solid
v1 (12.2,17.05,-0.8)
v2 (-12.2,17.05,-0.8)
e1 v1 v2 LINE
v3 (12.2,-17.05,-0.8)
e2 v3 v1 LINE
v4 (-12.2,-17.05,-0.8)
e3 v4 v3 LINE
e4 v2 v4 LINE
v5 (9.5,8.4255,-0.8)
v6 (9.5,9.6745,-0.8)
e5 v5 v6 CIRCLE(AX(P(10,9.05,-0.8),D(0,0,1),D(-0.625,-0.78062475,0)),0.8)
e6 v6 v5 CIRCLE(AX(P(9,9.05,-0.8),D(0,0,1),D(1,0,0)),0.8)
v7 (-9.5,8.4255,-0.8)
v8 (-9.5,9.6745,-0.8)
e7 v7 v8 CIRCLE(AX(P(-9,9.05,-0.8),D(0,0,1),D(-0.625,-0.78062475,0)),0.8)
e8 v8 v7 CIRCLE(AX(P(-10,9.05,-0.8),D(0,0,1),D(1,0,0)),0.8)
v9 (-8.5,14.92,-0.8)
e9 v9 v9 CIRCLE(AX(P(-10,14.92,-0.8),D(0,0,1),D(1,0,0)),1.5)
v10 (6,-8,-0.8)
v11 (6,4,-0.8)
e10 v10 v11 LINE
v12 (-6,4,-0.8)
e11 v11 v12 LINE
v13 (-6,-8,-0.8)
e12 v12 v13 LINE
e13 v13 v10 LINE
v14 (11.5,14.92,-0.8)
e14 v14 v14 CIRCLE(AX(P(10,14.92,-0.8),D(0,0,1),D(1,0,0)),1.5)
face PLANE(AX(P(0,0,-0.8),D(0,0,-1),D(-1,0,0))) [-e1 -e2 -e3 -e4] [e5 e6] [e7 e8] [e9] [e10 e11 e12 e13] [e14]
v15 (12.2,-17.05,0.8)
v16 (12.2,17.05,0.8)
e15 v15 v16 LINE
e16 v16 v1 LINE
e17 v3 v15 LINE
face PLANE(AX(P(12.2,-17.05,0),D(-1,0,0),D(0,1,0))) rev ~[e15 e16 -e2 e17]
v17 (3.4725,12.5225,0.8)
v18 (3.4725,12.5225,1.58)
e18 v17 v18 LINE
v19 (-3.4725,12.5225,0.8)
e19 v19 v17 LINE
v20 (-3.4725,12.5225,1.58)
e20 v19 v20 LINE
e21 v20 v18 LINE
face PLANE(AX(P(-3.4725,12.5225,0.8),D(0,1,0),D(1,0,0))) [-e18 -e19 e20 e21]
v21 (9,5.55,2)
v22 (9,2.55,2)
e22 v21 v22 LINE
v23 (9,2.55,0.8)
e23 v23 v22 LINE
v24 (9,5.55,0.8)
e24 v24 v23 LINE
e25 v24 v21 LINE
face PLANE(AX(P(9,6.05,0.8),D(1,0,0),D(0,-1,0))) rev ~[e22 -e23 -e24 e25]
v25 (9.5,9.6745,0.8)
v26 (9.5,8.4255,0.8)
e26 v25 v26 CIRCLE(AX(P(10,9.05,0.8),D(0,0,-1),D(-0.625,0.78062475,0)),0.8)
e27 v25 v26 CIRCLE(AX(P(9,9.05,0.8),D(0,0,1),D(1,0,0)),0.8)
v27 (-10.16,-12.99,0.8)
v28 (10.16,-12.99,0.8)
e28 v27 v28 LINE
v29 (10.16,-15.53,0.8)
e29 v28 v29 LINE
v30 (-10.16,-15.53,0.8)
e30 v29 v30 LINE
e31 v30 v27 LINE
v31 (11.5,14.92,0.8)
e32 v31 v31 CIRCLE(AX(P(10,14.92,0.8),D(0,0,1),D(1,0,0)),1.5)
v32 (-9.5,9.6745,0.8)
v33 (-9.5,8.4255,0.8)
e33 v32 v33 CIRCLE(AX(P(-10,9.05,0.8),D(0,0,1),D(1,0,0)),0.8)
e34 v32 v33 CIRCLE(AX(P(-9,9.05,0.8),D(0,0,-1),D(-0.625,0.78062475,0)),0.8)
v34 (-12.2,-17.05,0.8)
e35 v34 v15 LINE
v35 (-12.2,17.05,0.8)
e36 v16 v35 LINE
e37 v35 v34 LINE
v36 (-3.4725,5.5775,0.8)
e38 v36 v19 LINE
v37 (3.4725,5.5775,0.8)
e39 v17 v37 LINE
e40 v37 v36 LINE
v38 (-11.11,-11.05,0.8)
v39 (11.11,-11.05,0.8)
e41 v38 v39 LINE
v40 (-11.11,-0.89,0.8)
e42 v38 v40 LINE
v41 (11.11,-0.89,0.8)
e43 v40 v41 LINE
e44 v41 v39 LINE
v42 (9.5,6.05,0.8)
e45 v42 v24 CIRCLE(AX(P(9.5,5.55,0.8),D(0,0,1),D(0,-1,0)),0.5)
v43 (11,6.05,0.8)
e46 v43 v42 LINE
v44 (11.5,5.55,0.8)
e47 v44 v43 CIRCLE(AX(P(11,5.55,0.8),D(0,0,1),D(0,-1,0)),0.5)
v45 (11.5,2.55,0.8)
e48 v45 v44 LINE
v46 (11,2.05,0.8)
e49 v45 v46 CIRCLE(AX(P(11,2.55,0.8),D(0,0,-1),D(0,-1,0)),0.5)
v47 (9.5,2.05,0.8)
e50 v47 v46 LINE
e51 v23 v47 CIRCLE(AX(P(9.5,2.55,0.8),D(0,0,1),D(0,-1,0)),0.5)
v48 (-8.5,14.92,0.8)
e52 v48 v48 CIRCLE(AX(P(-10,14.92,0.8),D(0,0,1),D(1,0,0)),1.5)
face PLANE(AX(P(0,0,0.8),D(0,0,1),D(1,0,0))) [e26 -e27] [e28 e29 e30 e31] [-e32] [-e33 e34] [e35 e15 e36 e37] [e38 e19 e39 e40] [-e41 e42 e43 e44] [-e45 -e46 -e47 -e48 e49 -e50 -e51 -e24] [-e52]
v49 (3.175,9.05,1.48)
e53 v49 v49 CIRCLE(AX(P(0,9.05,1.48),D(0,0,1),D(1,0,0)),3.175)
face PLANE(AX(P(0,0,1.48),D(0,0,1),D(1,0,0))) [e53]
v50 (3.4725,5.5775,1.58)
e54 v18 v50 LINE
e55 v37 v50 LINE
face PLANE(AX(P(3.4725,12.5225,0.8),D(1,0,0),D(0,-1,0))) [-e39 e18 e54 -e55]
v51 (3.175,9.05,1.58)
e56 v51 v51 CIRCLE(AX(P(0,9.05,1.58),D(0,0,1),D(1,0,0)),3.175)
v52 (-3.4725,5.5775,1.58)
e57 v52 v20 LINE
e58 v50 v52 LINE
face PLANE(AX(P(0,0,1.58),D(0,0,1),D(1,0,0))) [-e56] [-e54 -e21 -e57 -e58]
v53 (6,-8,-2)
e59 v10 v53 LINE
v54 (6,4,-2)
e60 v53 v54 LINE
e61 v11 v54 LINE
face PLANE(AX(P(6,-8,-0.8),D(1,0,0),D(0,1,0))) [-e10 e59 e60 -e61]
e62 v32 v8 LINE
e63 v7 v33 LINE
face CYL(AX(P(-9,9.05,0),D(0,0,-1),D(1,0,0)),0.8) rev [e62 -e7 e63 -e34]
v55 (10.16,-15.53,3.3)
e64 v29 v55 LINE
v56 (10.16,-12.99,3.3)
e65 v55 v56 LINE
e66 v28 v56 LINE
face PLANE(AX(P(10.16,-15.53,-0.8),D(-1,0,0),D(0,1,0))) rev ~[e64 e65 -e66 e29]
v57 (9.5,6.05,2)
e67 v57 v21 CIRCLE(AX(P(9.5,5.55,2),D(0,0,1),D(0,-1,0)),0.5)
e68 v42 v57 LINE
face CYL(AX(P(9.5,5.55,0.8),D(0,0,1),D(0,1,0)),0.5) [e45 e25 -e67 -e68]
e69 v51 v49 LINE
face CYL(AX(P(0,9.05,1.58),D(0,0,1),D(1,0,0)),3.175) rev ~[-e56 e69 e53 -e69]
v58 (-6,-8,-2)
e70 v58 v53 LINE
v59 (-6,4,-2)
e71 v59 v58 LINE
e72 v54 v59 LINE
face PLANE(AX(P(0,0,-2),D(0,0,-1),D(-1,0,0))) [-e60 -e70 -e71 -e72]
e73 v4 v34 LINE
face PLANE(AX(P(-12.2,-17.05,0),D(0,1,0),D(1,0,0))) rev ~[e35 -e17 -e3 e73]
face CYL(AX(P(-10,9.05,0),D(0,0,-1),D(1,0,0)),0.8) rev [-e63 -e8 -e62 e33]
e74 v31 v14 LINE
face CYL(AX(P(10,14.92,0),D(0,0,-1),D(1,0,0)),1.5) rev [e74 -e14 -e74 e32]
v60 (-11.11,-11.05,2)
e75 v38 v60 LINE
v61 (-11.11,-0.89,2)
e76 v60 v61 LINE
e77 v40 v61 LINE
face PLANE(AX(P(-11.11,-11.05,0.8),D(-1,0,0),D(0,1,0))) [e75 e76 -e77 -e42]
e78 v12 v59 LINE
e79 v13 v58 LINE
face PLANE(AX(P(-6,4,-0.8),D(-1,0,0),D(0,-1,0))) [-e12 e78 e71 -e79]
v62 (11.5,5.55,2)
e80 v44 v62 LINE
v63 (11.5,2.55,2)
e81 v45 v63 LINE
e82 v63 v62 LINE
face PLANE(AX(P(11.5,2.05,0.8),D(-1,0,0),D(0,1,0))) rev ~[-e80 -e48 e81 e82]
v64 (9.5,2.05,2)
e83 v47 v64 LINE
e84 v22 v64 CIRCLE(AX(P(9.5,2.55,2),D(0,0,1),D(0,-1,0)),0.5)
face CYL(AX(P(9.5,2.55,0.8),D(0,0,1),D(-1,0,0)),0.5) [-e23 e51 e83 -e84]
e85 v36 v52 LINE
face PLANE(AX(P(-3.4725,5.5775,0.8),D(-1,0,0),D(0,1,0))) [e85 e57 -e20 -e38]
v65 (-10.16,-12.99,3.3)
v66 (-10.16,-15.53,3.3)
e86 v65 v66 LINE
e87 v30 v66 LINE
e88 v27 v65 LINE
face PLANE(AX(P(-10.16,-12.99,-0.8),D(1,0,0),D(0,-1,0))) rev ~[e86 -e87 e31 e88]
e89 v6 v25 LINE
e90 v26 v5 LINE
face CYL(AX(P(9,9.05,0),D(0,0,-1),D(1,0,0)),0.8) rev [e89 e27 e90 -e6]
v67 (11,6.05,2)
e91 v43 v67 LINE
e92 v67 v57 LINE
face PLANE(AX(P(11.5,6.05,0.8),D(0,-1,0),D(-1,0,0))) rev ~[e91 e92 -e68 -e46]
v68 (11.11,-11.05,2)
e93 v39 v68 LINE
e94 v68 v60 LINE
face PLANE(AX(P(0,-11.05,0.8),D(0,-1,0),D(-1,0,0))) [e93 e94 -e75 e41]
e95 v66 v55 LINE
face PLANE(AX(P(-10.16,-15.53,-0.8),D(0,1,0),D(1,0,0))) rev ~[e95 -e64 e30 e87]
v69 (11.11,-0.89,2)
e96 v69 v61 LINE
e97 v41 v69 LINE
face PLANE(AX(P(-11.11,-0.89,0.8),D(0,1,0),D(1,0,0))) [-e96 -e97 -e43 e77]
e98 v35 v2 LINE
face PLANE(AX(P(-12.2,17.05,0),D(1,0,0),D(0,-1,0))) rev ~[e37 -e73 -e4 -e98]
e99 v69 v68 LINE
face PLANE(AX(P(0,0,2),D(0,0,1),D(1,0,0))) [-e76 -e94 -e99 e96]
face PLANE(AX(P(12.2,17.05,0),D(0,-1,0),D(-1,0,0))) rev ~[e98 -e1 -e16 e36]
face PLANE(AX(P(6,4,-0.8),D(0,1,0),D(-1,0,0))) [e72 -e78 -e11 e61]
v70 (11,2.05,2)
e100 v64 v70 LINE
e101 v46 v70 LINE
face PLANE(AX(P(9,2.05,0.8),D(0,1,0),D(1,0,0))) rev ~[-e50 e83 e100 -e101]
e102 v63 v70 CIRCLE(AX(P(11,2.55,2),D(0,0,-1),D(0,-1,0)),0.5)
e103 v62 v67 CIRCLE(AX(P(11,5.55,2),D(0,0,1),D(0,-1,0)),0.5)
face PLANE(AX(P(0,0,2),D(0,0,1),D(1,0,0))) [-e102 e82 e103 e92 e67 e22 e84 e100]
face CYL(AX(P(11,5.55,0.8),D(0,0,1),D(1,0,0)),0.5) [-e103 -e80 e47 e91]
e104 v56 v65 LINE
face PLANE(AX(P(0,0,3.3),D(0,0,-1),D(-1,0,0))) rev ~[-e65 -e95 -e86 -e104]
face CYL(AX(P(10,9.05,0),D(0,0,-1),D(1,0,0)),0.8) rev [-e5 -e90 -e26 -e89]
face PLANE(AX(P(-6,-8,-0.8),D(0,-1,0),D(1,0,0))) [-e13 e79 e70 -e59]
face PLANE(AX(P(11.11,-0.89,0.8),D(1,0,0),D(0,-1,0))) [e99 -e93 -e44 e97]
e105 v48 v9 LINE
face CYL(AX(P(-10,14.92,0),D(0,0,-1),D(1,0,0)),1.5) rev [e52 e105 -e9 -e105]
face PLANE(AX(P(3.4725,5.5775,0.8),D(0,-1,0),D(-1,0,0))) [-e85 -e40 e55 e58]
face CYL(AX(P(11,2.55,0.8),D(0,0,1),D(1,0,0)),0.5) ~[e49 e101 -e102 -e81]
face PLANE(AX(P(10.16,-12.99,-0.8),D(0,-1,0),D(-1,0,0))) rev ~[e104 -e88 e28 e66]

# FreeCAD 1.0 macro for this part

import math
import FreeCAD as App
import Part
import Sketcher
from FreeCAD import Vector
Q = App.Units.Quantity


def edges_at(feature, points):
    """Names of the edges that pass closest to the given points."""
    edges = feature.Shape.Edges
    near = lambda p: min(range(len(edges)), key=lambda i: edges[i].distToShape(Part.Vertex(*p))[0])
    return sorted({f"Edge{near(p) + 1}" for p in points})


def add_polygon(sketch, points):
    """Adds a closed chain of lines whose ends are joined by coincident constraints."""
    first, n = sketch.GeometryCount, len(points)
    for a, b in zip(points, points[1:] + points[:1]):
        sketch.addGeometry(Part.LineSegment(App.Vector(*a, 0), App.Vector(*b, 0)), False)
    for i in range(n):
        sketch.addConstraint(Sketcher.Constraint("Coincident", first + i, 2, first + (i + 1) % n, 1))

doc = App.newDocument("Part")
body = doc.addObject("PartDesign::Body", "Body")

# Sketch on XY plane
sketch1 = body.newObject("Sketcher::SketchObject", "Sketch")
sketch1.AttachmentSupport = (doc.getObject("XY_Plane"), [""])
sketch1.MapMode = "FlatFace"
add_polygon(sketch1, [(-12.2, 17.1), (-12.2, -17.1), (12.2, -17.1), (12.2, 17.1)])  # lines 0-3
sketch1.addGeometry(Part.ArcOfCircle(Part.Circle(Vector(-9, 9.1, 0), Vector(0, 0, 1), 0.8), math.radians(-129), math.radians(129)), False)  # 4
sketch1.addGeometry(Part.ArcOfCircle(Part.Circle(Vector(-10, 9.1, 0), Vector(0, 0, 1), 0.8), math.radians(51), math.radians(309)), False)  # 5
sketch1.addGeometry(Part.Circle(Vector(-10, 14.9, 0), Vector(0, 0, 1), 1.5), False)  # 6
sketch1.addGeometry(Part.ArcOfCircle(Part.Circle(Vector(9, 9.1, 0), Vector(0, 0, 1), 0.8), math.radians(51), math.radians(309)), False)  # 7
sketch1.addGeometry(Part.ArcOfCircle(Part.Circle(Vector(10, 9.1, 0), Vector(0, 0, 1), 0.8), math.radians(-129), math.radians(129)), False)  # 8
sketch1.addGeometry(Part.Circle(Vector(10, 14.9, 0), Vector(0, 0, 1), 1.5), False)  # 9
sketch1.addConstraint(Sketcher.Constraint("Coincident", 4, 1, 5, 2))
sketch1.addConstraint(Sketcher.Constraint("Coincident", 5, 1, 4, 2))
sketch1.addConstraint(Sketcher.Constraint("Coincident", 7, 1, 8, 2))
sketch1.addConstraint(Sketcher.Constraint("Coincident", 8, 1, 7, 2))
sketch1.addConstraint(Sketcher.Constraint("Vertical", 0))
sketch1.addConstraint(Sketcher.Constraint("Horizontal", 1))
sketch1.addConstraint(Sketcher.Constraint("Vertical", 2))
sketch1.addConstraint(Sketcher.Constraint("Horizontal", 3))
sketch1.addConstraint(Sketcher.Constraint("Equal", 4, 5))
sketch1.addConstraint(Sketcher.Constraint("Equal", 5, 7))
sketch1.addConstraint(Sketcher.Constraint("Equal", 7, 8))
sketch1.addConstraint(Sketcher.Constraint("Equal", 6, 9))
sketch1.addConstraint(Sketcher.Constraint("Symmetric", 0, 2, 2, 2, -1, 1))
sketch1.addConstraint(Sketcher.Constraint("Symmetric", 4, 3, 7, 3, -2))
sketch1.addConstraint(Sketcher.Constraint("Symmetric", 5, 3, 8, 3, -2))
sketch1.addConstraint(Sketcher.Constraint("Symmetric", 6, 3, 9, 3, -2))
sketch1.addConstraint(Sketcher.Constraint("Horizontal", 4, 3, 5, 3))
sketch1.addConstraint(Sketcher.Constraint("Vertical", 5, 3, 6, 3))
sketch1.addConstraint(Sketcher.Constraint("Diameter", 6, Q("3 mm")))
sketch1.addConstraint(Sketcher.Constraint("Radius", 4, Q("0.8 mm")))
sketch1.addConstraint(Sketcher.Constraint("DistanceX", 1, 1, 1, 2, Q("24.4 mm")))
sketch1.addConstraint(Sketcher.Constraint("DistanceY", 0, 2, 0, 1, Q("34.1 mm")))
sketch1.addConstraint(Sketcher.Constraint("DistanceX", 5, 3, -1, 1, Q("10 mm")))
sketch1.addConstraint(Sketcher.Constraint("DistanceX", 4, 3, 7, 3, Q("18 mm")))
sketch1.addConstraint(Sketcher.Constraint("DistanceY", 8, 3, 2, 2, Q("8 mm")))
sketch1.addConstraint(Sketcher.Constraint("DistanceY", 9, 3, 2, 2, Q("2.13 mm")))
pad1 = body.newObject("PartDesign::Pad", "Pad")
pad1.Profile = sketch1
pad1.Length = 1.6
pad1.Midplane = True

# Sketch on XY plane
sketch2 = body.newObject("Sketcher::SketchObject", "Sketch001")
sketch2.AttachmentSupport = (doc.getObject("XY_Plane"), [""])
sketch2.MapMode = "FlatFace"
sketch2.AttachmentOffset = App.Placement(Vector(0, 0, -0.8), App.Rotation())
add_polygon(sketch2, [(-10.2, -13), (10.2, -13), (10.2, -15.5), (-10.2, -15.5)])  # lines 0-3
sketch2.addConstraint(Sketcher.Constraint("Horizontal", 0))
sketch2.addConstraint(Sketcher.Constraint("Vertical", 1))
sketch2.addConstraint(Sketcher.Constraint("Horizontal", 2))
sketch2.addConstraint(Sketcher.Constraint("Vertical", 3))
sketch2.addConstraint(Sketcher.Constraint("DistanceX", 0, 1, 0, 2, Q("20.32 mm")))
sketch2.addConstraint(Sketcher.Constraint("DistanceY", 1, 2, 1, 1, Q("2.54 mm")))
sketch2.addConstraint(Sketcher.Constraint("DistanceX", -1, 1, 0, 2, Q("10.16 mm")))
sketch2.addConstraint(Sketcher.Constraint("DistanceY", 0, 2, -1, 1, Q("12.99 mm")))
pad2 = body.newObject("PartDesign::Pad", "Pad001")
pad2.Profile = sketch2
pad2.Length = 4.1

# Sketch on XY plane
sketch3 = body.newObject("Sketcher::SketchObject", "Sketch002")
sketch3.AttachmentSupport = (doc.getObject("XY_Plane"), [""])
sketch3.MapMode = "FlatFace"
sketch3.AttachmentOffset = App.Placement(Vector(0, 0, 0.8), App.Rotation())
add_polygon(sketch3, [(3, 13), (-3, 13), (-3, 6), (3, 6)])  # lines 0-3
sketch3.addConstraint(Sketcher.Constraint("Horizontal", 0))
sketch3.addConstraint(Sketcher.Constraint("Vertical", 1))
sketch3.addConstraint(Sketcher.Constraint("Horizontal", 2))
sketch3.addConstraint(Sketcher.Constraint("Vertical", 3))
sketch3.addConstraint(Sketcher.Constraint("Equal", 2, 1))
sketch3.addConstraint(Sketcher.Constraint("DistanceX", 0, 2, 0, 1, Q("6.945 mm")))
sketch3.addConstraint(Sketcher.Constraint("DistanceX", 0, 2, -1, 1, Q("3.4725 mm")))
sketch3.addConstraint(Sketcher.Constraint("DistanceY", -1, 1, 0, 2, Q("12.5225 mm")))
pad3 = body.newObject("PartDesign::Pad", "Pad002")
pad3.Profile = sketch3
pad3.Length = 0.78

# Sketch on XY plane
sketch4 = body.newObject("Sketcher::SketchObject", "Sketch003")
sketch4.AttachmentSupport = (doc.getObject("XY_Plane"), [""])
sketch4.MapMode = "FlatFace"
sketch4.AttachmentOffset = App.Placement(Vector(0, 0, 1.58), App.Rotation())
sketch4.addGeometry(Part.Circle(Vector(0, 9.1, 0), Vector(0, 0, 1), 3.2), False)
sketch4.addConstraint(Sketcher.Constraint("PointOnObject", 0, 3, -2))
sketch4.addConstraint(Sketcher.Constraint("Diameter", 0, Q("6.35 mm")))
sketch4.addConstraint(Sketcher.Constraint("DistanceY", -1, 1, 0, 3, Q("9.05 mm")))
pocket1 = body.newObject("PartDesign::Pocket", "Pocket")
pocket1.Profile = sketch4
pocket1.Length = 0.1

# Sketch on XY plane
sketch5 = body.newObject("Sketcher::SketchObject", "Sketch004")
sketch5.AttachmentSupport = (doc.getObject("XY_Plane"), [""])
sketch5.MapMode = "FlatFace"
sketch5.AttachmentOffset = App.Placement(Vector(0, 0, 0.8), App.Rotation())
add_polygon(sketch5, [(-11, -11), (11, -11), (11, -1), (-11, -1)])  # lines 0-3
sketch5.addConstraint(Sketcher.Constraint("Horizontal", 0))
sketch5.addConstraint(Sketcher.Constraint("Vertical", 1))
sketch5.addConstraint(Sketcher.Constraint("Horizontal", 2))
sketch5.addConstraint(Sketcher.Constraint("Vertical", 3))
sketch5.addConstraint(Sketcher.Constraint("DistanceX", 0, 1, 0, 2, Q("22.22 mm")))
sketch5.addConstraint(Sketcher.Constraint("DistanceY", 1, 1, 1, 2, Q("10.16 mm")))
sketch5.addConstraint(Sketcher.Constraint("DistanceX", -1, 1, 0, 2, Q("11.11 mm")))
sketch5.addConstraint(Sketcher.Constraint("DistanceY", 0, 2, -1, 1, Q("11.05 mm")))
pad4 = body.newObject("PartDesign::Pad", "Pad003")
pad4.Profile = sketch5
pad4.Length = 1.2

# Sketch on XY plane
sketch6 = body.newObject("Sketcher::SketchObject", "Sketch005")
sketch6.AttachmentSupport = (doc.getObject("XY_Plane"), [""])
sketch6.MapMode = "FlatFace"
sketch6.AttachmentOffset = App.Placement(Vector(0, 0, 0.8), App.Rotation())
add_polygon(sketch6, [(11.5, 2), (11.5, 6), (9, 6), (9, 2)])  # lines 0-3
sketch6.addConstraint(Sketcher.Constraint("Vertical", 0))
sketch6.addConstraint(Sketcher.Constraint("Horizontal", 1))
sketch6.addConstraint(Sketcher.Constraint("Vertical", 2))
sketch6.addConstraint(Sketcher.Constraint("Horizontal", 3))
sketch6.addConstraint(Sketcher.Constraint("DistanceY", 0, 1, 0, 2, Q("4 mm")))
sketch6.addConstraint(Sketcher.Constraint("DistanceX", 1, 2, 1, 1, Q("2.5 mm")))
sketch6.addConstraint(Sketcher.Constraint("DistanceX", -1, 1, 1, 2, Q("9 mm")))
sketch6.addConstraint(Sketcher.Constraint("DistanceY", -1, 1, 0, 2, Q("6.05 mm")))
pad5 = body.newObject("PartDesign::Pad", "Pad004")
pad5.Profile = sketch6
pad5.Length = 1.2

# Sketch on XY plane
sketch7 = body.newObject("Sketcher::SketchObject", "Sketch006")
sketch7.AttachmentSupport = (doc.getObject("XY_Plane"), [""])
sketch7.MapMode = "FlatFace"
sketch7.AttachmentOffset = App.Placement(Vector(0, 0, -0.8), App.Rotation())
add_polygon(sketch7, [(6, -8), (-6, -8), (-6, 4), (6, 4)])  # lines 0-3
sketch7.addConstraint(Sketcher.Constraint("Horizontal", 0))
sketch7.addConstraint(Sketcher.Constraint("Vertical", 1))
sketch7.addConstraint(Sketcher.Constraint("Horizontal", 2))
sketch7.addConstraint(Sketcher.Constraint("Vertical", 3))
sketch7.addConstraint(Sketcher.Constraint("Equal", 2, 1))
sketch7.addConstraint(Sketcher.Constraint("DistanceX", 0, 2, 0, 1, Q("12 mm")))
sketch7.addConstraint(Sketcher.Constraint("DistanceX", 0, 2, -1, 1, Q("6 mm")))
sketch7.addConstraint(Sketcher.Constraint("DistanceY", 0, 2, -1, 1, Q("8 mm")))
pad6 = body.newObject("PartDesign::Pad", "Pad005")
pad6.Profile = sketch7
pad6.Length = 1.2
pad6.Reversed = True
doc.recompute()

fillet = body.newObject("PartDesign::Fillet", "Fillet")
fillet.Base = (pad6, edges_at(pad6, [
    (9, 2.05, 1.4),
    (9, 6.05, 1.4),
    (11.5, 6.05, 1.4),
    (11.5, 2.05, 1.4),
]))
fillet.Radius = 0.5

doc.recompute()
